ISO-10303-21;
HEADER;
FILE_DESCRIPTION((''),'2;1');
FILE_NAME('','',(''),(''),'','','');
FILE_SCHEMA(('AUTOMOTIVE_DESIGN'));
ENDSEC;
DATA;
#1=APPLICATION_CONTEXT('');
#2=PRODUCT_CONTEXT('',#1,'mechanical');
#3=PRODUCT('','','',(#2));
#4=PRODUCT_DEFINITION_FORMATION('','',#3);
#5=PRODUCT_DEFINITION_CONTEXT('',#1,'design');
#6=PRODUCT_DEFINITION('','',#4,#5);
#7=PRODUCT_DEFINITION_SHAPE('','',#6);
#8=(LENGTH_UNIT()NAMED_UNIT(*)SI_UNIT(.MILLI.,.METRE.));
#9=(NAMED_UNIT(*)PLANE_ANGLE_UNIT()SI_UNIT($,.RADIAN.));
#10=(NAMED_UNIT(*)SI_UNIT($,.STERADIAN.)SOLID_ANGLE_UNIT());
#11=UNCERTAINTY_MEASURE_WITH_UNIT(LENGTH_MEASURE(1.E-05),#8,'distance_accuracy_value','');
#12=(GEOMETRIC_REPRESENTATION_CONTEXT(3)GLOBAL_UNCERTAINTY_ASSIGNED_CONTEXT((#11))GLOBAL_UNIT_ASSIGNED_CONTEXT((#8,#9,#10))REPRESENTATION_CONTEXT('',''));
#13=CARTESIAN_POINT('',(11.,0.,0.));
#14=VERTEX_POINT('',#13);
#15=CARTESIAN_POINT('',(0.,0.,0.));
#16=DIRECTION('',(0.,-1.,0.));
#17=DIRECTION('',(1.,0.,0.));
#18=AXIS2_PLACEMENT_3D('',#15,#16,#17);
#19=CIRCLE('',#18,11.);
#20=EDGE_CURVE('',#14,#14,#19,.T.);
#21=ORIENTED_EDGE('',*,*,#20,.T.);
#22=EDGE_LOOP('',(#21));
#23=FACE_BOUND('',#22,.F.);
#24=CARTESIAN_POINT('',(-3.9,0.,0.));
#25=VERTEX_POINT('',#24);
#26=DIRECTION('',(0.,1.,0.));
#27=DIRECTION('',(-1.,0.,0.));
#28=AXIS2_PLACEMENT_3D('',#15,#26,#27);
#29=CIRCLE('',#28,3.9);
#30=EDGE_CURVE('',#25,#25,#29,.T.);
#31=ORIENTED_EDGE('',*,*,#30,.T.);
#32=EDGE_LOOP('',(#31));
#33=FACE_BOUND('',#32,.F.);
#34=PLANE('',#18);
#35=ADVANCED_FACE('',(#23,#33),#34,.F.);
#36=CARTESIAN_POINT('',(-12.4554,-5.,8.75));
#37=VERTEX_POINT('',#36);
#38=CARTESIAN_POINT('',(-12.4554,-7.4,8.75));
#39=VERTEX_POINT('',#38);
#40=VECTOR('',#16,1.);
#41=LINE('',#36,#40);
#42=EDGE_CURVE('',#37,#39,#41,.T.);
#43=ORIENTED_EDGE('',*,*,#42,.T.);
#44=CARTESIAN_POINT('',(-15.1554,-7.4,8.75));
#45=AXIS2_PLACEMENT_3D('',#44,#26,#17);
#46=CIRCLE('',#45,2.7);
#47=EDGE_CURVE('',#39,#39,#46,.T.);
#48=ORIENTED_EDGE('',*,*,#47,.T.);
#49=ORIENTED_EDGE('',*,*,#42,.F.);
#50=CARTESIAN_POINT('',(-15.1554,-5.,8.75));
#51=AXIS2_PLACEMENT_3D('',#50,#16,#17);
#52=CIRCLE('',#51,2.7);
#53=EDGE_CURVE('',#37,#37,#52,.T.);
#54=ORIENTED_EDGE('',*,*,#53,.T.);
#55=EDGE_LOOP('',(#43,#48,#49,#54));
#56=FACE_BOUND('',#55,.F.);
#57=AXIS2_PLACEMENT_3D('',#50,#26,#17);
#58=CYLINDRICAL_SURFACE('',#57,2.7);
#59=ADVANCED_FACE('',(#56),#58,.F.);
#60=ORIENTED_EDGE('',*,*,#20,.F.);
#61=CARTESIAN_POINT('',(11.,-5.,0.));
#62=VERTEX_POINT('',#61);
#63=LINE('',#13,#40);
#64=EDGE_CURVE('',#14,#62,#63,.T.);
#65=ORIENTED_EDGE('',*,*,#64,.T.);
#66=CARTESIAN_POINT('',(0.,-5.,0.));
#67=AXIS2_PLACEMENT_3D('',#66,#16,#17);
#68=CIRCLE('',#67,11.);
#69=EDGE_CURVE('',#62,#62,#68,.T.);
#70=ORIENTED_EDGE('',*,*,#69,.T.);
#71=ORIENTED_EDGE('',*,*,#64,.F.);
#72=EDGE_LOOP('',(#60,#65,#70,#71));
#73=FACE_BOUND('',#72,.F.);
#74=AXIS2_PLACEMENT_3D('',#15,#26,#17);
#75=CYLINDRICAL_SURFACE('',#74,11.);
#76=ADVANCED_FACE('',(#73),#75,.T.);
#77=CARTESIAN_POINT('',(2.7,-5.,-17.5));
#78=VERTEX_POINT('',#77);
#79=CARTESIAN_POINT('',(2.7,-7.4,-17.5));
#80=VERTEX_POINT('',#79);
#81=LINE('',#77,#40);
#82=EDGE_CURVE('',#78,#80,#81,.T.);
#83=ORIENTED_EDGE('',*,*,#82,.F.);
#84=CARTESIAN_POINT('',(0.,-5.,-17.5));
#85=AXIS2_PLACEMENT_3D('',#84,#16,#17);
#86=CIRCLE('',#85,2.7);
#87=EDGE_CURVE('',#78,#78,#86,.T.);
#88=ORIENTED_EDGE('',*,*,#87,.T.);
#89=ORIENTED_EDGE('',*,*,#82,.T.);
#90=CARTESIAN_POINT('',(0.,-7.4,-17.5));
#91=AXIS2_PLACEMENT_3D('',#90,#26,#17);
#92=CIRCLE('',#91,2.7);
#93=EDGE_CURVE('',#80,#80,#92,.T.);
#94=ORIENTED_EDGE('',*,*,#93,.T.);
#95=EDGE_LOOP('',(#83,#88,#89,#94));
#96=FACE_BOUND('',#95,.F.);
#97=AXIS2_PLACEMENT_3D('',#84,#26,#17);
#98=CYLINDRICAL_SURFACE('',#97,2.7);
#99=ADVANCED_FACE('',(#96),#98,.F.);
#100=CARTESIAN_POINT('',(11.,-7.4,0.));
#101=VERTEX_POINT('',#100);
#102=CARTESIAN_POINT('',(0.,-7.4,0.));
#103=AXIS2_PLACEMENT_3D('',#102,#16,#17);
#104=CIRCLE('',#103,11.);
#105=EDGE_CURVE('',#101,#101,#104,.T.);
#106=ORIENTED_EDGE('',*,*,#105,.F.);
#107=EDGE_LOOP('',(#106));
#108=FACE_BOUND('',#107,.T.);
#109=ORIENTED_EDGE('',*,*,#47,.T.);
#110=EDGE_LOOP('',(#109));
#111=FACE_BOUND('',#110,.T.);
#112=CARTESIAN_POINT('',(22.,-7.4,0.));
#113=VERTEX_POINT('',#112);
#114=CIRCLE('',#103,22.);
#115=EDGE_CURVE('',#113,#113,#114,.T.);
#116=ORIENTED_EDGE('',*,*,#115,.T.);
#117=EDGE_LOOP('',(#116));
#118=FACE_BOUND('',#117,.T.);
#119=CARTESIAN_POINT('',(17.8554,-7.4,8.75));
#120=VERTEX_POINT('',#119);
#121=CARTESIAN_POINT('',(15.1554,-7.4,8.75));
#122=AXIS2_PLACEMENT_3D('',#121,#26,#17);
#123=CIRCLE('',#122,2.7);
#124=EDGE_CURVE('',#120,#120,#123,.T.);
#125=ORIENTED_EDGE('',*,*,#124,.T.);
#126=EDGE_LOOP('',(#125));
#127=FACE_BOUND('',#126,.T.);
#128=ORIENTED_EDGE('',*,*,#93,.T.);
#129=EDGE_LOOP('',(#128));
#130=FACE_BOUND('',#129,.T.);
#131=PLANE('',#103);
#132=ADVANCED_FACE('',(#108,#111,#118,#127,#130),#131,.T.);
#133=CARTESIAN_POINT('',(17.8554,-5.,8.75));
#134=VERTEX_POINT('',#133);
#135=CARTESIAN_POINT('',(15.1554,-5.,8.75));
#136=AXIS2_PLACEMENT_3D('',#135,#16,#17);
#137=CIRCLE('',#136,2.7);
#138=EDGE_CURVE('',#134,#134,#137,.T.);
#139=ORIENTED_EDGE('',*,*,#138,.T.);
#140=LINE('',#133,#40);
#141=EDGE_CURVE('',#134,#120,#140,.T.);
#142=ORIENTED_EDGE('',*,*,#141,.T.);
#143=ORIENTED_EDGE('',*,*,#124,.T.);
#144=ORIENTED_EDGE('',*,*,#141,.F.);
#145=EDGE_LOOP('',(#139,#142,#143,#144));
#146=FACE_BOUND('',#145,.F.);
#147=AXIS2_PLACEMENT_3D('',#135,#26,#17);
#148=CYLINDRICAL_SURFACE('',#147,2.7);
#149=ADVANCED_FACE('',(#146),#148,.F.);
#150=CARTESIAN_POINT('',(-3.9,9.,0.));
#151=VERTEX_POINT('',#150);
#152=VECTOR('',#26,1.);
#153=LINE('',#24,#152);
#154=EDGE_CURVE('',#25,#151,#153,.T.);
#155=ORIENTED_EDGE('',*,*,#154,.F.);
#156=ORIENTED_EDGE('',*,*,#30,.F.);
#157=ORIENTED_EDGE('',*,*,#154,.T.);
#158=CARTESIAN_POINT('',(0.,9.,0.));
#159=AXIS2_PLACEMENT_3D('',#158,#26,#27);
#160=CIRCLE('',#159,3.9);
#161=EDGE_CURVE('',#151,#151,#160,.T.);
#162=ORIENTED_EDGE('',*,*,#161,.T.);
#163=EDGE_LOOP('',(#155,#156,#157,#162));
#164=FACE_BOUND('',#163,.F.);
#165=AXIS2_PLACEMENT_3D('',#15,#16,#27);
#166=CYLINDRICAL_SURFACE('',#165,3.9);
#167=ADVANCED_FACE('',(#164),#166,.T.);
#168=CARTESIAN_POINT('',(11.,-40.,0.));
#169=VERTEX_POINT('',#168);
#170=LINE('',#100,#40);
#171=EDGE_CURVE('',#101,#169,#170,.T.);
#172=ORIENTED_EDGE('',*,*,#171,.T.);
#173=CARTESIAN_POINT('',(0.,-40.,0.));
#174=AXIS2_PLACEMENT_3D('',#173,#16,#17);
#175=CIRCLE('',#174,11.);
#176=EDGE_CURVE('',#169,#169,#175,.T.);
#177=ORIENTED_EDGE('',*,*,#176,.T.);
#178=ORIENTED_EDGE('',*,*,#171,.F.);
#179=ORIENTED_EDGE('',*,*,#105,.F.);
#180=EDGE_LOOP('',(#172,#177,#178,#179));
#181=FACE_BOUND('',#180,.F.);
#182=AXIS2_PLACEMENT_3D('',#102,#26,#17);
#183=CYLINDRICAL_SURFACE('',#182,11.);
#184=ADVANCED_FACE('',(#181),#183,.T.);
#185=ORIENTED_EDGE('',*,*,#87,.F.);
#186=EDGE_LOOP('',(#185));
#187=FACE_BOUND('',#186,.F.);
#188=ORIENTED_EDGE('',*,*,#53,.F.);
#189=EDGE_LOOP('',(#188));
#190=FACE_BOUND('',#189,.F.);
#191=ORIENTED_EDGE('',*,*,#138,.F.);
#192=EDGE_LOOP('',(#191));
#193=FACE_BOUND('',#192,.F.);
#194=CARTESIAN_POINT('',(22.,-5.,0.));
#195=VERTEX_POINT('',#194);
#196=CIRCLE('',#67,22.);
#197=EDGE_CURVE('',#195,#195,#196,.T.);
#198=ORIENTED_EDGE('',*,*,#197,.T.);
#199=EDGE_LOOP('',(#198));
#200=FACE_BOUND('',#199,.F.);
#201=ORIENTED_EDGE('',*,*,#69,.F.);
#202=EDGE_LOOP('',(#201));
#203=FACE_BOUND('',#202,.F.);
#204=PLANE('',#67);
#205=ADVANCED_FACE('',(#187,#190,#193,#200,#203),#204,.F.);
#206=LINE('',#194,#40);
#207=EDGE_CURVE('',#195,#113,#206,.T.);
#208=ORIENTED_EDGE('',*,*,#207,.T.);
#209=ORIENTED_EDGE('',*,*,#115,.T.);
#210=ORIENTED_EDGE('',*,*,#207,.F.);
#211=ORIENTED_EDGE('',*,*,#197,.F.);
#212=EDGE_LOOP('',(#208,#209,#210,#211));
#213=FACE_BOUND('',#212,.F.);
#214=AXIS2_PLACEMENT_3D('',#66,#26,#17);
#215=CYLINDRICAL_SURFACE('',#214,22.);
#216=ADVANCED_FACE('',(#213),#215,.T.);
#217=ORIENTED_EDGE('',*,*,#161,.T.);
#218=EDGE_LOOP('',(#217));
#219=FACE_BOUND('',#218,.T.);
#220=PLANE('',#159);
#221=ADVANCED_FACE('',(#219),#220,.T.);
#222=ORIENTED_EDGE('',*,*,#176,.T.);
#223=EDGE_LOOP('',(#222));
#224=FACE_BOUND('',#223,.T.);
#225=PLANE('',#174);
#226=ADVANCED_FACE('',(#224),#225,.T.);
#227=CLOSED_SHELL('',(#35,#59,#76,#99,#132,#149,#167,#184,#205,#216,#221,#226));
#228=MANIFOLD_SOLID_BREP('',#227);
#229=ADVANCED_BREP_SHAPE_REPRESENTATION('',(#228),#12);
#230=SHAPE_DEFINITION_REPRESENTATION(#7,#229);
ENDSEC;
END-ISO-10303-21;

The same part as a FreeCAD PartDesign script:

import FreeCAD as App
import Part
import Sketcher

doc = App.newDocument("Part")
body = doc.addObject("PartDesign::Body", "Body")

sketch1 = body.newObject("Sketcher::SketchObject", "Sketch")
sketch1.AttachmentSupport = (doc.getObject("XZ_Plane"), [""])
sketch1.MapMode = "FlatFace"
sketch1.addGeometry(Part.Circle(App.Vector(0, 0, 0), App.Vector(0, 0, 1), 3.9), False)
sketch1.addConstraint(Sketcher.Constraint("Coincident", 0, 3, -1, 1))
sketch1.addConstraint(Sketcher.Constraint("Diameter", 0, 7.8))
pad1 = body.newObject("PartDesign::Pad", "Pad")
pad1.Profile = sketch1
pad1.Length = 9
pad1.Reversed = True

sketch2 = body.newObject("Sketcher::SketchObject", "Sketch001")
sketch2.AttachmentSupport = (doc.getObject("XZ_Plane"), [""])
sketch2.MapMode = "FlatFace"
sketch2.addGeometry(Part.Circle(App.Vector(0, 0, 0), App.Vector(0, 0, 1), 11), False)
sketch2.addConstraint(Sketcher.Constraint("Coincident", 0, 3, -1, 1))
sketch2.addConstraint(Sketcher.Constraint("Diameter", 0, 22.0))
pad2 = body.newObject("PartDesign::Pad", "Pad001")
pad2.Profile = sketch2
pad2.Length = 5

sketch3 = body.newObject("Sketcher::SketchObject", "Sketch002")
sketch3.AttachmentSupport = (doc.getObject("XZ_Plane"), [""])
sketch3.MapMode = "FlatFace"
sketch3.AttachmentOffset = App.Placement(App.Vector(0, 0, 5), App.Rotation())
sketch3.addGeometry(Part.Circle(App.Vector(0, 0, 0), App.Vector(0, 0, 1), 22), False)
sketch3.addConstraint(Sketcher.Constraint("Coincident", 0, 3, -1, 1))
sketch3.addConstraint(Sketcher.Constraint("Diameter", 0, 44.0))
pad3 = body.newObject("PartDesign::Pad", "Pad002")
pad3.Profile = sketch3
pad3.Length = 2.4

sketch4 = body.newObject("Sketcher::SketchObject", "Sketch003")
sketch4.AttachmentSupport = (doc.getObject("XZ_Plane"), [""])
sketch4.MapMode = "FlatFace"
sketch4.AttachmentOffset = App.Placement(App.Vector(0, 0, 7.4), App.Rotation())
sketch4.addGeometry(Part.Circle(App.Vector(0, 0, 0), App.Vector(0, 0, 1), 11), False)
sketch4.addConstraint(Sketcher.Constraint("Coincident", 0, 3, -1, 1))
sketch4.addConstraint(Sketcher.Constraint("Diameter", 0, 22.0))
pad4 = body.newObject("PartDesign::Pad", "Pad003")
pad4.Profile = sketch4
pad4.Length = 32.6

sketch5 = body.newObject("Sketcher::SketchObject", "Sketch004")
sketch5.AttachmentSupport = (doc.getObject("XZ_Plane"), [""])
sketch5.MapMode = "FlatFace"
sketch5.AttachmentOffset = App.Placement(App.Vector(0, 0, 5), App.Rotation())
sketch5.addGeometry(Part.Circle(App.Vector(0, -17.5, 0), App.Vector(0, 0, 1), 2.7), False)
sketch5.addGeometry(Part.Circle(App.Vector(15.2, 8.8, 0), App.Vector(0, 0, 1), 2.7), False)
sketch5.addGeometry(Part.Circle(App.Vector(-15.2, 8.8, 0), App.Vector(0, 0, 1), 2.7), False)
sketch5.addConstraint(Sketcher.Constraint("Equal", 0, 1))
sketch5.addConstraint(Sketcher.Constraint("Equal", 1, 2))
sketch5.addConstraint(Sketcher.Constraint("Symmetric", 1, 3, 2, 3, -2))
sketch5.addConstraint(Sketcher.Constraint("PointOnObject", 0, 3, -2))
sketch5.addConstraint(Sketcher.Constraint("Diameter", 0, 5.4))
sketch5.addConstraint(Sketcher.Constraint("DistanceY", 0, 3, -1, 1, 17.5))
sketch5.addConstraint(Sketcher.Constraint("DistanceY", -1, 1, 1, 3, 8.75))
sketch5.addConstraint(Sketcher.Constraint("DistanceX", -1, 1, 1, 3, 15.1554))
pocket1 = body.newObject("PartDesign::Pocket", "Pocket")
pocket1.Profile = sketch5
pocket1.Length = 27.6
pocket1.Reversed = True

doc.recompute()
